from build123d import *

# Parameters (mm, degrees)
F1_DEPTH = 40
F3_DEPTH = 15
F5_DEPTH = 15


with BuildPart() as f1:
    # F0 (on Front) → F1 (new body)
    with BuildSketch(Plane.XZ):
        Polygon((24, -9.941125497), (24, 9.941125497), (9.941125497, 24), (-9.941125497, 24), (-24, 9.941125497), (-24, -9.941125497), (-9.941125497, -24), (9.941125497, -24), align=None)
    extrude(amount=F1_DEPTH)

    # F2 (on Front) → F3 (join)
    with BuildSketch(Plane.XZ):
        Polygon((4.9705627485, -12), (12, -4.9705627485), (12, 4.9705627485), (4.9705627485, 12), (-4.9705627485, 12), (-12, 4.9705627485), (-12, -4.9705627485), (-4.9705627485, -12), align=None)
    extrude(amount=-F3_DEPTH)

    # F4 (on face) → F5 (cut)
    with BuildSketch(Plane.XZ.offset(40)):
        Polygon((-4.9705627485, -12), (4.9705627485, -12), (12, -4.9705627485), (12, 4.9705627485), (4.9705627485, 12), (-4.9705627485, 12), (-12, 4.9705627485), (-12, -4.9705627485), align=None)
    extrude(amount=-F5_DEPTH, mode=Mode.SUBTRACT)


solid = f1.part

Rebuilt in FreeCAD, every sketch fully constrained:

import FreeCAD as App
import Part
import Sketcher
from FreeCAD import Vector

doc = App.newDocument("Part")
body = doc.addObject("PartDesign::Body", "Body")

# Sketch on XZ plane
sketch1 = body.newObject("Sketcher::SketchObject", "Sketch")
sketch1.AttachmentSupport = (doc.getObject("XZ_Plane"), [""])
sketch1.MapMode = "FlatFace"
sketch1.addGeometry([
    Part.LineSegment(Vector(24, -9.941125, 0), Vector(24, 9.941125, 0)),  # 0
    Part.LineSegment(Vector(24, 9.941125, 0), Vector(9.941125, 24, 0)),  # 1
    Part.LineSegment(Vector(9.941125, 24, 0), Vector(-9.941125, 24, 0)),  # 2
    Part.LineSegment(Vector(-9.941125, 24, 0), Vector(-24, 9.941125, 0)),  # 3
    Part.LineSegment(Vector(-24, 9.941125, 0), Vector(-24, -9.941125, 0)),  # 4
    Part.LineSegment(Vector(-24, -9.941125, 0), Vector(-9.941125, -24, 0)),  # 5
    Part.LineSegment(Vector(-9.941125, -24, 0), Vector(9.941125, -24, 0)),  # 6
    Part.LineSegment(Vector(9.941125, -24, 0), Vector(24, -9.941125, 0)),  # 7
], False)
sketch1.addConstraint([
    Sketcher.Constraint("Coincident", 0, 2, 1, 1),
    Sketcher.Constraint("Coincident", 1, 2, 2, 1),
    Sketcher.Constraint("Coincident", 2, 2, 3, 1),
    Sketcher.Constraint("Coincident", 3, 2, 4, 1),
    Sketcher.Constraint("Coincident", 4, 2, 5, 1),
    Sketcher.Constraint("Coincident", 5, 2, 6, 1),
    Sketcher.Constraint("Coincident", 6, 2, 7, 1),
    Sketcher.Constraint("Coincident", 7, 2, 0, 1),
    Sketcher.Constraint("Vertical", 0),
    Sketcher.Constraint("Horizontal", 2),
    Sketcher.Constraint("Vertical", 4),
    Sketcher.Constraint("Horizontal", 6),
    Sketcher.Constraint("Symmetric", 0, 2, 4, 2, -1, 1),
    Sketcher.Constraint("Symmetric", 1, 2, 5, 2, -1, 1),
    Sketcher.Constraint("Perpendicular", 1, 3),
    Sketcher.Constraint("Perpendicular", 5, 7),
    Sketcher.Constraint("Horizontal", 0, 2, 3, 2),
    Sketcher.Constraint("Horizontal", 4, 2, 7, 2),
    Sketcher.Constraint("Vertical", 2, 2, 5, 2),
    Sketcher.Constraint("Equal", 6, 0),
    Sketcher.Constraint("DistanceX", -1, 1, 0, 2, 24.0),
    Sketcher.Constraint("DistanceX", 2, 2, 2, 1, 19.882251),
])
pad1 = body.newObject("PartDesign::Pad", "Pad")
pad1.Profile = sketch1
pad1.Length = 40

# Sketch on XZ plane
sketch2 = body.newObject("Sketcher::SketchObject", "Sketch001")
sketch2.AttachmentSupport = (doc.getObject("XZ_Plane"), [""])
sketch2.MapMode = "FlatFace"
sketch2.addGeometry([
    Part.LineSegment(Vector(4.970563, -12, 0), Vector(12, -4.970563, 0)),  # 0
    Part.LineSegment(Vector(12, -4.970563, 0), Vector(12, 4.970563, 0)),  # 1
    Part.LineSegment(Vector(12, 4.970563, 0), Vector(4.970563, 12, 0)),  # 2
    Part.LineSegment(Vector(4.970563, 12, 0), Vector(-4.970563, 12, 0)),  # 3
    Part.LineSegment(Vector(-4.970563, 12, 0), Vector(-12, 4.970563, 0)),  # 4
    Part.LineSegment(Vector(-12, 4.970563, 0), Vector(-12, -4.970563, 0)),  # 5
    Part.LineSegment(Vector(-12, -4.970563, 0), Vector(-4.970563, -12, 0)),  # 6
    Part.LineSegment(Vector(-4.970563, -12, 0), Vector(4.970563, -12, 0)),  # 7
], False)
sketch2.addConstraint([
    Sketcher.Constraint("Coincident", 0, 2, 1, 1),
    Sketcher.Constraint("Coincident", 1, 2, 2, 1),
    Sketcher.Constraint("Coincident", 2, 2, 3, 1),
    Sketcher.Constraint("Coincident", 3, 2, 4, 1),
    Sketcher.Constraint("Coincident", 4, 2, 5, 1),
    Sketcher.Constraint("Coincident", 5, 2, 6, 1),
    Sketcher.Constraint("Coincident", 6, 2, 7, 1),
    Sketcher.Constraint("Coincident", 7, 2, 0, 1),
    Sketcher.Constraint("Vertical", 1),
    Sketcher.Constraint("Horizontal", 3),
    Sketcher.Constraint("Vertical", 5),
    Sketcher.Constraint("Horizontal", 7),
    Sketcher.Constraint("Symmetric", 0, 2, 4, 2, -1, 1),
    Sketcher.Constraint("Symmetric", 2, 2, 6, 2, -1, 1),
    Sketcher.Constraint("Perpendicular", 0, 2),
    Sketcher.Constraint("Perpendicular", 2, 4),
    Sketcher.Constraint("Perpendicular", 4, 6),
    Sketcher.Constraint("Horizontal", 1, 2, 4, 2),
    Sketcher.Constraint("Vertical", 3, 2, 6, 2),
    Sketcher.Constraint("Equal", 7, 1),
    Sketcher.Constraint("DistanceX", -1, 1, 0, 2, 12.0),
    Sketcher.Constraint("DistanceX", 3, 2, 3, 1, 9.941125),
])
pad2 = body.newObject("PartDesign::Pad", "Pad001")
pad2.Profile = sketch2
pad2.Length = 15
pad2.Reversed = True

# Sketch on XZ plane
sketch3 = body.newObject("Sketcher::SketchObject", "Sketch002")
sketch3.AttachmentSupport = (doc.getObject("XZ_Plane"), [""])
sketch3.MapMode = "FlatFace"
sketch3.AttachmentOffset = App.Placement(Vector(0, 0, 40), App.Rotation())
sketch3.addGeometry([
    Part.LineSegment(Vector(-4.970563, -12, 0), Vector(4.970563, -12, 0)),  # 0
    Part.LineSegment(Vector(4.970563, -12, 0), Vector(12, -4.970563, 0)),  # 1
    Part.LineSegment(Vector(12, -4.970563, 0), Vector(12, 4.970563, 0)),  # 2
    Part.LineSegment(Vector(12, 4.970563, 0), Vector(4.970563, 12, 0)),  # 3
    Part.LineSegment(Vector(4.970563, 12, 0), Vector(-4.970563, 12, 0)),  # 4
    Part.LineSegment(Vector(-4.970563, 12, 0), Vector(-12, 4.970563, 0)),  # 5
    Part.LineSegment(Vector(-12, 4.970563, 0), Vector(-12, -4.970563, 0)),  # 6
    Part.LineSegment(Vector(-12, -4.970563, 0), Vector(-4.970563, -12, 0)),  # 7
], False)
sketch3.addConstraint([
    Sketcher.Constraint("Coincident", 0, 2, 1, 1),
    Sketcher.Constraint("Coincident", 1, 2, 2, 1),
    Sketcher.Constraint("Coincident", 2, 2, 3, 1),
    Sketcher.Constraint("Coincident", 3, 2, 4, 1),
    Sketcher.Constraint("Coincident", 4, 2, 5, 1),
    Sketcher.Constraint("Coincident", 5, 2, 6, 1),
    Sketcher.Constraint("Coincident", 6, 2, 7, 1),
    Sketcher.Constraint("Coincident", 7, 2, 0, 1),
    Sketcher.Constraint("Horizontal", 0),
    Sketcher.Constraint("Vertical", 2),
    Sketcher.Constraint("Horizontal", 4),
    Sketcher.Constraint("Vertical", 6),
    Sketcher.Constraint("Symmetric", 0, 2, 4, 2, -1, 1),
    Sketcher.Constraint("Symmetric", 1, 2, 5, 2, -1, 1),
    Sketcher.Constraint("Perpendicular", 1, 3),
    Sketcher.Constraint("Perpendicular", 5, 7),
    Sketcher.Constraint("Horizontal", 2, 2, 5, 2),
    Sketcher.Constraint("Horizontal", 1, 2, 6, 2),
    Sketcher.Constraint("Vertical", 0, 2, 3, 2),
    Sketcher.Constraint("Equal", 4, 2),
    Sketcher.Constraint("DistanceY", 0, 2, -1, 1, 12.0),
    Sketcher.Constraint("DistanceX", 0, 1, 0, 2, 9.941125),
])
pocket1 = body.newObject("PartDesign::Pocket", "Pocket")
pocket1.Profile = sketch3
pocket1.Length = 15

doc.recompute()
